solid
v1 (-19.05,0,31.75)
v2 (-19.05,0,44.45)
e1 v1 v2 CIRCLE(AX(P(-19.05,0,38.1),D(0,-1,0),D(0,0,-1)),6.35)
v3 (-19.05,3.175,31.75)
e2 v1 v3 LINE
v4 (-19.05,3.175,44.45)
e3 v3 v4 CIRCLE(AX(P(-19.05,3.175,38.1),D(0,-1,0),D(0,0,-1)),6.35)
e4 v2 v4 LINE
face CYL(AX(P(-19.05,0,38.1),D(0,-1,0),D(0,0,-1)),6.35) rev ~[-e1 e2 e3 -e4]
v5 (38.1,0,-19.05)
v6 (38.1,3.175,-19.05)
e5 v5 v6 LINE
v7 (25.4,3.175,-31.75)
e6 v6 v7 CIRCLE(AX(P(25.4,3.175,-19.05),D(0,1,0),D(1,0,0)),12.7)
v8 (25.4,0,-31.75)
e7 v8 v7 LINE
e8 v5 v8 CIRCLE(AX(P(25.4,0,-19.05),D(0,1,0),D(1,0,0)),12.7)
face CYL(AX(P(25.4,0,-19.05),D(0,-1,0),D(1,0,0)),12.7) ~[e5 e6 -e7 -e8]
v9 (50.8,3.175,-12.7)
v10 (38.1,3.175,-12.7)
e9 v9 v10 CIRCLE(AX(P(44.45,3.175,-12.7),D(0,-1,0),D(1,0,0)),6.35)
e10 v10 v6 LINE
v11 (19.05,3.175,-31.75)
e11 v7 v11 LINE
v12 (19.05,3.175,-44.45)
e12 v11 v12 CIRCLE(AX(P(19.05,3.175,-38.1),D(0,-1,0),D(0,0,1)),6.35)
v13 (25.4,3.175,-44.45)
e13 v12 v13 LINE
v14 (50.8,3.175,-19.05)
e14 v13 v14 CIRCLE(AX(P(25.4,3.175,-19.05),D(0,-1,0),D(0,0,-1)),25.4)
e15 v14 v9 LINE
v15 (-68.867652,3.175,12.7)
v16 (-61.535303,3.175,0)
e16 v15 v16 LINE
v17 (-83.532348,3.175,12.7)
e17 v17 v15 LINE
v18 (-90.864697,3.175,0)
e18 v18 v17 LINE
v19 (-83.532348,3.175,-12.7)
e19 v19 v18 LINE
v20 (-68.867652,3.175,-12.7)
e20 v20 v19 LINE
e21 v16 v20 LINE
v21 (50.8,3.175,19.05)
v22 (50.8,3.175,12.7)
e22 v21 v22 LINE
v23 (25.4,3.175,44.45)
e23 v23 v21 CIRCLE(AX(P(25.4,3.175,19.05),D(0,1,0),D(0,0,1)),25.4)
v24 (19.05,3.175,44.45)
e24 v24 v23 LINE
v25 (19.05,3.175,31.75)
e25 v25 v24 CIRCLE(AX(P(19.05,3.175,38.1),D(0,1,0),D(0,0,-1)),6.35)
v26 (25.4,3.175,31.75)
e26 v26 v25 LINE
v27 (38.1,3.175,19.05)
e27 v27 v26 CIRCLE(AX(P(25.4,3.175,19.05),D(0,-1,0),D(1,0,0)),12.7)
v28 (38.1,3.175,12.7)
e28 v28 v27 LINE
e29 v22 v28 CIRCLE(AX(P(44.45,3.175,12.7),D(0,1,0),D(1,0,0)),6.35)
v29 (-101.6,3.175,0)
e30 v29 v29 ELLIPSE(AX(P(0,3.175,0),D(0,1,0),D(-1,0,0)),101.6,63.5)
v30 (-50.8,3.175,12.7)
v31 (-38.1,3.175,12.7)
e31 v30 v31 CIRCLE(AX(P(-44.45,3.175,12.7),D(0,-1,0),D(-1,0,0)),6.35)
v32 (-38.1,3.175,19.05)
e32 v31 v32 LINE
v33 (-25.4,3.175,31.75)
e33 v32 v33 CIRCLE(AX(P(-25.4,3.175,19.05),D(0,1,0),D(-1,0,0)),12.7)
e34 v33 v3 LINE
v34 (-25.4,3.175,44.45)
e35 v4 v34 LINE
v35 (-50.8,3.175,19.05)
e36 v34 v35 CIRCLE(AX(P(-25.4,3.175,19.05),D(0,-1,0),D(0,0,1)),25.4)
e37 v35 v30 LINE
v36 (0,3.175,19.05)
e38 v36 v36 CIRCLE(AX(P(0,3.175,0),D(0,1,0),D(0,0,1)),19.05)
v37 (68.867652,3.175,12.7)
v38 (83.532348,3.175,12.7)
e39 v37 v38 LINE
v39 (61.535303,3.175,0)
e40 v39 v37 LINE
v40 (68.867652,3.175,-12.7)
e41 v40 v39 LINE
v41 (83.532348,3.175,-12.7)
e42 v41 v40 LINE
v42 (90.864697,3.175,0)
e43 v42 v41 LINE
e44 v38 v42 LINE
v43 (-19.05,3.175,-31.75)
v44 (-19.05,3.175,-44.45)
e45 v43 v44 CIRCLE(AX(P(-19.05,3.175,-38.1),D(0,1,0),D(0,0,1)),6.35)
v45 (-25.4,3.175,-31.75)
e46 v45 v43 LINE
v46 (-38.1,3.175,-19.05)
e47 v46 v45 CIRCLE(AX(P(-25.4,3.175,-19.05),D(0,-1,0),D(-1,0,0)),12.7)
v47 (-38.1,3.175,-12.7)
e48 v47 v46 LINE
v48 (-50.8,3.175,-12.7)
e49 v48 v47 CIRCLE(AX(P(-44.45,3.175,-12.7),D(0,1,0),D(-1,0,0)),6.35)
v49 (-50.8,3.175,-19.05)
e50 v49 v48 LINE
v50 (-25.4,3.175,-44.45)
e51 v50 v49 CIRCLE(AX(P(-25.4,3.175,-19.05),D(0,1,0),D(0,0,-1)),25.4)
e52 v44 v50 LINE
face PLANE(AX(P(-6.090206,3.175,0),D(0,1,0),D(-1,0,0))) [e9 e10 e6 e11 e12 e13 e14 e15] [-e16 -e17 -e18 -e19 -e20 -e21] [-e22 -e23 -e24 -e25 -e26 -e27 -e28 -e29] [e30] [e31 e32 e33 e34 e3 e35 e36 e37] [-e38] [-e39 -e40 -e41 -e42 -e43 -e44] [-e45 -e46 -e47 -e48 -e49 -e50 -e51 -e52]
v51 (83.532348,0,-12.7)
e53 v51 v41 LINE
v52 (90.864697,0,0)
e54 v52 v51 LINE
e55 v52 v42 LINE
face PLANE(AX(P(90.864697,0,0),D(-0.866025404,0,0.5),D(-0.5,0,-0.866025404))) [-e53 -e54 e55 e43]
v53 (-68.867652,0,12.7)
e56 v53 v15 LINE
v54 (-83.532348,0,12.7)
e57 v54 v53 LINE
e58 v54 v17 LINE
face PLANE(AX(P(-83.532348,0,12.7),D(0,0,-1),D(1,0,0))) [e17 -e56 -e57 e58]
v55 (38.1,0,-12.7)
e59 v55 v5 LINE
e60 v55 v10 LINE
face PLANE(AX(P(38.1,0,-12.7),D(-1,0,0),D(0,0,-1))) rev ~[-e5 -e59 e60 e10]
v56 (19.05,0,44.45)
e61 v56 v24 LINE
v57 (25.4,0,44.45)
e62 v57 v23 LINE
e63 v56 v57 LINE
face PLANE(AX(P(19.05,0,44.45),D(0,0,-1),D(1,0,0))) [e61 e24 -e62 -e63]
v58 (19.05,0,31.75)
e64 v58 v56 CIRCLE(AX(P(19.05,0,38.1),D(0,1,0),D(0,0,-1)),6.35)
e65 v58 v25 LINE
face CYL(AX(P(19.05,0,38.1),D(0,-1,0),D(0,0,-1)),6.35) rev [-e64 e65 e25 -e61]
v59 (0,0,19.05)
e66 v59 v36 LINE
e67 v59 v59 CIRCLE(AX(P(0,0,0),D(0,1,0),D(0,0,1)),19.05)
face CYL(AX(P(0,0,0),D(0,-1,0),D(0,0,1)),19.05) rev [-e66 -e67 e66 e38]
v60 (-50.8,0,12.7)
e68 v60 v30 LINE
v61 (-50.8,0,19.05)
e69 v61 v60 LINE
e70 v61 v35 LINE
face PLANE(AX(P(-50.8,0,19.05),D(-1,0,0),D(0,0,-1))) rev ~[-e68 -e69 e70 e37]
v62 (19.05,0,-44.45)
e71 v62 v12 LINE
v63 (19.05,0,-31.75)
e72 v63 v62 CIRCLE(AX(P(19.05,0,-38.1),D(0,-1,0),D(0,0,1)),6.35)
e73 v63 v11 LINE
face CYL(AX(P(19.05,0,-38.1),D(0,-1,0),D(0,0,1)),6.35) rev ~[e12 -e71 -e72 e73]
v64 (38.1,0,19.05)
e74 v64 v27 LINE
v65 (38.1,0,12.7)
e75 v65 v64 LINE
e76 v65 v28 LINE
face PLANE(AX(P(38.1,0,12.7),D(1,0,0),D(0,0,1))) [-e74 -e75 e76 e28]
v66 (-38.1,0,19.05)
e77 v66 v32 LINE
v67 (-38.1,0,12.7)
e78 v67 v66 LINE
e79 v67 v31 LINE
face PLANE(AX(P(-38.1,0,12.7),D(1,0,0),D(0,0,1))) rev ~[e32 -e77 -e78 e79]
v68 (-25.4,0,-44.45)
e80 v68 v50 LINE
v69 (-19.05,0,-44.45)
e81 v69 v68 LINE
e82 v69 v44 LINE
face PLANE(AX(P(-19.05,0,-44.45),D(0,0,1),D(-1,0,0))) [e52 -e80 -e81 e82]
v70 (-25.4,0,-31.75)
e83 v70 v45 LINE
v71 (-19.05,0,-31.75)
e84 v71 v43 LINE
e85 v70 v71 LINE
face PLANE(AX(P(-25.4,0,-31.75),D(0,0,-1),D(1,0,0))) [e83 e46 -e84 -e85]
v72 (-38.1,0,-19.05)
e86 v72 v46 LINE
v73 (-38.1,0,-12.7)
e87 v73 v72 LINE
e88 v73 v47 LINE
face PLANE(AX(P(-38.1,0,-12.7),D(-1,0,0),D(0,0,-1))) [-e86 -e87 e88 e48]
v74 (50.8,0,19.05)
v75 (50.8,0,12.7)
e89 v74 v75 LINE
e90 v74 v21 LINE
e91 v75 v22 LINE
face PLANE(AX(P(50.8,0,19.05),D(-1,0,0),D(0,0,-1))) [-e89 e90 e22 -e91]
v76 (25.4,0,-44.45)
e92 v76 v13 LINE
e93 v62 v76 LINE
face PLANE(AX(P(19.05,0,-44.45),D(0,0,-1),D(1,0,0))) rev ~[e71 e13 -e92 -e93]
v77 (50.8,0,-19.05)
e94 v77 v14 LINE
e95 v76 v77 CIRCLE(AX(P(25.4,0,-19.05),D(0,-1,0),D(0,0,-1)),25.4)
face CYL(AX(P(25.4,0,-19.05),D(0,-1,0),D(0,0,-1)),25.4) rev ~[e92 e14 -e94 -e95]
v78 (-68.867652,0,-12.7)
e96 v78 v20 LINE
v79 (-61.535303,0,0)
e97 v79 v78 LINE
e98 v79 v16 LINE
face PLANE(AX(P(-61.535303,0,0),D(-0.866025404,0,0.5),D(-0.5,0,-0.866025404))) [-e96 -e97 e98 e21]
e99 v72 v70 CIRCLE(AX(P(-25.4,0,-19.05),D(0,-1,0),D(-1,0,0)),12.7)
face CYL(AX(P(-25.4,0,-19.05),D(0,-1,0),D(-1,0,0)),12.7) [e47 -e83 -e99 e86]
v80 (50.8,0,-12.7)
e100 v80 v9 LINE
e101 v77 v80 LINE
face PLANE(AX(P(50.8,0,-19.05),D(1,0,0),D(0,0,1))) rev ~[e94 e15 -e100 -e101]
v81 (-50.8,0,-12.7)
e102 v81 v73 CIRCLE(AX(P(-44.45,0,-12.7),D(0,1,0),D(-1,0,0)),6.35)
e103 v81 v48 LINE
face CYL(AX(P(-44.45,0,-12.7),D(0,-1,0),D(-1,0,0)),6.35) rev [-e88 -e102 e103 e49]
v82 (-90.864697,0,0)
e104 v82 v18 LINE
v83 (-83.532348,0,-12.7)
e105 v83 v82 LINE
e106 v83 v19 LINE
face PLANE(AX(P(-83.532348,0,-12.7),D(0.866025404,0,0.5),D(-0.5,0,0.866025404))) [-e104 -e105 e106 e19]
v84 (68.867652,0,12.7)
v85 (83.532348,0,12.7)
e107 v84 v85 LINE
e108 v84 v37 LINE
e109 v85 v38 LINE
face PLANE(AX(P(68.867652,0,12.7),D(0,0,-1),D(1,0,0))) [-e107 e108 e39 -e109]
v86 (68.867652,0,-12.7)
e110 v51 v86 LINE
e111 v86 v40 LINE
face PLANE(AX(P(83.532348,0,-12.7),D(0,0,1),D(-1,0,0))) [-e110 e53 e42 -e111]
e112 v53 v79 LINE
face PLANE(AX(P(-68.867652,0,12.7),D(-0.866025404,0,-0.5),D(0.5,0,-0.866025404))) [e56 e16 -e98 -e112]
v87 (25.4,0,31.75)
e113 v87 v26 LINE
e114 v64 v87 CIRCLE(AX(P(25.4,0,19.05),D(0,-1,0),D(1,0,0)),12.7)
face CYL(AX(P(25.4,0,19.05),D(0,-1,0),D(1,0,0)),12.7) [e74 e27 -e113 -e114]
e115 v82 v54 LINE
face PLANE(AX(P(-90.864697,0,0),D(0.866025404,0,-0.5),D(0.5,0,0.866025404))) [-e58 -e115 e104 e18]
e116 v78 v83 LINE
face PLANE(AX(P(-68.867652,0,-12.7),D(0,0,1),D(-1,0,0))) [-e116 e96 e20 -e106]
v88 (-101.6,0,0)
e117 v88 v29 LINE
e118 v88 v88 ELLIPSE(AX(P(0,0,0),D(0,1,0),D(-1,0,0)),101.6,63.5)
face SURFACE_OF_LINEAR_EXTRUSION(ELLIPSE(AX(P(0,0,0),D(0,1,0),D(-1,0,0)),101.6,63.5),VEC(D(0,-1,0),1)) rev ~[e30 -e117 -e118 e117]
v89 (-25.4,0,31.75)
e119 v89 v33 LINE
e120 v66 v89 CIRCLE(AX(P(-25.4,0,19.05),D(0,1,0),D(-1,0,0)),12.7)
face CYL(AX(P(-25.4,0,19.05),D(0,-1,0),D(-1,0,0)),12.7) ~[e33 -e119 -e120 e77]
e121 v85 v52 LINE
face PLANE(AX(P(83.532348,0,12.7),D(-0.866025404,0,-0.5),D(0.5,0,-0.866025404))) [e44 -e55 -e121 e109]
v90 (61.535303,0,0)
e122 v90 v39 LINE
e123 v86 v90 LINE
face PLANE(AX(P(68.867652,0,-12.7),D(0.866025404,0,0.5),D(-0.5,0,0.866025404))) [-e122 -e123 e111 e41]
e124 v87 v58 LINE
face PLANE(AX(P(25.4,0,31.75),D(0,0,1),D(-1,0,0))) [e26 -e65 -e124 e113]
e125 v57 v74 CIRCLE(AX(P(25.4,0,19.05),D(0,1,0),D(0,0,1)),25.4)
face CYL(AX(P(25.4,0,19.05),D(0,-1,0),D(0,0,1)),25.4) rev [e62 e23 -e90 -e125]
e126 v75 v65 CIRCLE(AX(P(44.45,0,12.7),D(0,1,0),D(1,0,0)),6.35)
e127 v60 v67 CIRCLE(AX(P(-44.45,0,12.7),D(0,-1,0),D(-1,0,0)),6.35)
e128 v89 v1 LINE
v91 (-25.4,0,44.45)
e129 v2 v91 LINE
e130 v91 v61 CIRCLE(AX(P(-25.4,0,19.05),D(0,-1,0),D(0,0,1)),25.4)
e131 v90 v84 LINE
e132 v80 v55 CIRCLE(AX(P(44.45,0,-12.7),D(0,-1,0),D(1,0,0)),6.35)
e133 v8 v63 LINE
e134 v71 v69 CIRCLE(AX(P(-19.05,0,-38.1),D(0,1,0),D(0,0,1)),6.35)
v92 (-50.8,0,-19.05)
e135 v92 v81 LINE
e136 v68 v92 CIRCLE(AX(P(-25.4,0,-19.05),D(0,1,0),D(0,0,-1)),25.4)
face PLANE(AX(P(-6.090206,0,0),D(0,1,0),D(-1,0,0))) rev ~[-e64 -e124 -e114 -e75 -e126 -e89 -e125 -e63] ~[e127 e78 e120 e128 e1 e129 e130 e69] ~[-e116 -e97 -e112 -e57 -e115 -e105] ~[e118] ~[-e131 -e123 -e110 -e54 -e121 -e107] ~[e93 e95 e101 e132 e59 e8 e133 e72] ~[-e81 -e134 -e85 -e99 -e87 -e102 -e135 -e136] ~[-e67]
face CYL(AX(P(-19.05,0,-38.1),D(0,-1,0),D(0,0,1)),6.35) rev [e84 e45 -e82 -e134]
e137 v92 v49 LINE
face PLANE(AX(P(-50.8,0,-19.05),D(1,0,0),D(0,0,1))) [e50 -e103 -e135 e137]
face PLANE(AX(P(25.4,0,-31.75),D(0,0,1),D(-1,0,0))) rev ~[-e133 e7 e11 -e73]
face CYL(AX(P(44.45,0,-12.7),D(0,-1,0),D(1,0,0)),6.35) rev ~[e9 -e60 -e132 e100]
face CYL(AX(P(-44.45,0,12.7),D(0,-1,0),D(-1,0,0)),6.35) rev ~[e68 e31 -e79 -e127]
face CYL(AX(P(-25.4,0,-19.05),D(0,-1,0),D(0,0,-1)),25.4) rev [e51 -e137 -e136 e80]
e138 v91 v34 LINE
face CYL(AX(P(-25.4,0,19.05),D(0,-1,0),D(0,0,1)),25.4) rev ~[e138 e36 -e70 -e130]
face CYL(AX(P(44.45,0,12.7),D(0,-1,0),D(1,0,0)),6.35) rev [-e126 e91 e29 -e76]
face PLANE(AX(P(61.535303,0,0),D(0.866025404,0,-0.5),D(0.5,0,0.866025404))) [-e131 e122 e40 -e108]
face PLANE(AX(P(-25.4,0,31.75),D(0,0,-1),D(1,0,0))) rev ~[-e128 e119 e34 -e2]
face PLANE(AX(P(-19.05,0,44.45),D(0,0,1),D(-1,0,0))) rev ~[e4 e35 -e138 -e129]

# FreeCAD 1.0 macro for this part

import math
import FreeCAD as App
import Part
import Sketcher
from FreeCAD import Vector
Q = App.Units.Quantity


def add_polygon(sketch, points):
    """Adds a closed chain of lines whose ends are joined by coincident constraints."""
    first, n = sketch.GeometryCount, len(points)
    for a, b in zip(points, points[1:] + points[:1]):
        sketch.addGeometry(Part.LineSegment(App.Vector(*a, 0), App.Vector(*b, 0)), False)
    for i in range(n):
        sketch.addConstraint(Sketcher.Constraint("Coincident", first + i, 2, first + (i + 1) % n, 1))

doc = App.newDocument("Part")
body = doc.addObject("PartDesign::Body", "Body")

sketch1 = body.newObject("Sketcher::SketchObject", "Sketch")
sketch1.AttachmentSupport = (doc.getObject("XZ_Plane"), [""])
sketch1.MapMode = "FlatFace"
sketch1.addGeometry(Part.Ellipse(Vector(-101.6, 0, 0), Vector(0, -63.5, 0), Vector(0, 0, 0)), False)
sketch1.addGeometry(Part.ArcOfCircle(Part.Circle(Vector(25.4, -19.05, 0), Vector(0, 0, 1), 12.7), math.radians(-90), math.radians(0)), False)
sketch1.addGeometry(Part.LineSegment(Vector(25.4, -31.75, 0), Vector(19.05, -31.75, 0)), False)
sketch1.addGeometry(Part.ArcOfCircle(Part.Circle(Vector(19.05, -38.1, 0), Vector(0, 0, 1), 6.35), math.radians(90), math.radians(270)), False)
sketch1.addGeometry(Part.LineSegment(Vector(19.05, -44.45, 0), Vector(25.4, -44.45, 0)), False)
sketch1.addGeometry(Part.ArcOfCircle(Part.Circle(Vector(25.4, -19.05, 0), Vector(0, 0, 1), 25.4), math.radians(-90), math.radians(0)), False)
sketch1.addGeometry(Part.LineSegment(Vector(50.8, -19.05, 0), Vector(50.8, -12.7, 0)), False)
sketch1.addGeometry(Part.ArcOfCircle(Part.Circle(Vector(44.45, -12.7, 0), Vector(0, 0, 1), 6.35), math.radians(0), math.radians(180)), False)
sketch1.addGeometry(Part.LineSegment(Vector(38.1, -12.7, 0), Vector(38.1, -19.05, 0)), False)
add_polygon(sketch1, [(83.532348, -12.7), (90.864697, 0), (83.532348, 12.7), (68.867652, 12.7), (61.535303, 0), (68.867652, -12.7)])
sketch1.addGeometry(Part.LineSegment(Vector(-19.05, -31.75, 0), Vector(-25.4, -31.75, 0)), False)
sketch1.addGeometry(Part.ArcOfCircle(Part.Circle(Vector(-25.4, -19.05, 0), Vector(0, 0, 1), 12.7), math.radians(180), math.radians(270)), False)
sketch1.addGeometry(Part.LineSegment(Vector(-38.1, -19.05, 0), Vector(-38.1, -12.7, 0)), False)
sketch1.addGeometry(Part.ArcOfCircle(Part.Circle(Vector(-44.45, -12.7, 0), Vector(0, 0, 1), 6.35), math.radians(0), math.radians(180)), False)
sketch1.addGeometry(Part.LineSegment(Vector(-50.8, -12.7, 0), Vector(-50.8, -19.05, 0)), False)
sketch1.addGeometry(Part.ArcOfCircle(Part.Circle(Vector(-25.4, -19.05, 0), Vector(0, 0, 1), 25.4), math.radians(180), math.radians(270)), False)
sketch1.addGeometry(Part.LineSegment(Vector(-25.4, -44.45, 0), Vector(-19.05, -44.45, 0)), False)
sketch1.addGeometry(Part.ArcOfCircle(Part.Circle(Vector(-19.05, -38.1, 0), Vector(0, 0, 1), 6.35), math.radians(-90), math.radians(90)), False)
sketch1.addGeometry(Part.LineSegment(Vector(50.8, 12.7, 0), Vector(50.8, 19.05, 0)), False)
sketch1.addGeometry(Part.ArcOfCircle(Part.Circle(Vector(25.4, 19.05, 0), Vector(0, 0, 1), 25.4), math.radians(0), math.radians(90)), False)
sketch1.addGeometry(Part.LineSegment(Vector(25.4, 44.45, 0), Vector(19.05, 44.45, 0)), False)
sketch1.addGeometry(Part.ArcOfCircle(Part.Circle(Vector(19.05, 38.1, 0), Vector(0, 0, 1), 6.35), math.radians(90), math.radians(270)), False)
sketch1.addGeometry(Part.LineSegment(Vector(19.05, 31.75, 0), Vector(25.4, 31.75, 0)), False)
sketch1.addGeometry(Part.ArcOfCircle(Part.Circle(Vector(25.4, 19.05, 0), Vector(0, 0, 1), 12.7), math.radians(0), math.radians(90)), False)
sketch1.addGeometry(Part.LineSegment(Vector(38.1, 19.05, 0), Vector(38.1, 12.7, 0)), False)
sketch1.addGeometry(Part.ArcOfCircle(Part.Circle(Vector(44.45, 12.7, 0), Vector(0, 0, 1), 6.35), math.radians(180), math.radians(360)), False)
sketch1.addGeometry(Part.Circle(Vector(0, 0, 0), Vector(0, 0, 1), 19.05), False)
add_polygon(sketch1, [(-68.867652, -12.7), (-61.535303, 0), (-68.867652, 12.7), (-83.532348, 12.7), (-90.864697, 0), (-83.532348, -12.7)])
sketch1.addGeometry(Part.ArcOfCircle(Part.Circle(Vector(-25.4, 19.05, 0), Vector(0, 0, 1), 12.7), math.radians(90), math.radians(180)), False)
sketch1.addGeometry(Part.LineSegment(Vector(-25.4, 31.75, 0), Vector(-19.05, 31.75, 0)), False)
sketch1.addGeometry(Part.ArcOfCircle(Part.Circle(Vector(-19.05, 38.1, 0), Vector(0, 0, 1), 6.35), math.radians(-90), math.radians(90)), False)
sketch1.addGeometry(Part.LineSegment(Vector(-19.05, 44.45, 0), Vector(-25.4, 44.45, 0)), False)
sketch1.addGeometry(Part.ArcOfCircle(Part.Circle(Vector(-25.4, 19.05, 0), Vector(0, 0, 1), 25.4), math.radians(90), math.radians(180)), False)
sketch1.addGeometry(Part.LineSegment(Vector(-50.8, 19.05, 0), Vector(-50.8, 12.7, 0)), False)
sketch1.addGeometry(Part.ArcOfCircle(Part.Circle(Vector(-44.45, 12.7, 0), Vector(0, 0, 1), 6.35), math.radians(180), math.radians(360)), False)
sketch1.addGeometry(Part.LineSegment(Vector(-38.1, 12.7, 0), Vector(-38.1, 19.05, 0)), False)
sketch1.addConstraint([
    Sketcher.Constraint("Block", 0),
    Sketcher.Constraint("Tangent", 1, 1, 2, 1),
    Sketcher.Constraint("Tangent", 2, 2, 3, 1),
    Sketcher.Constraint("Tangent", 3, 2, 4, 1),
    Sketcher.Constraint("Tangent", 4, 2, 5, 1),
    Sketcher.Constraint("Tangent", 5, 2, 6, 1),
    Sketcher.Constraint("Tangent", 6, 2, 7, 1),
    Sketcher.Constraint("Tangent", 7, 2, 8, 1),
    Sketcher.Constraint("Tangent", 8, 2, 1, 2),
    Sketcher.Constraint("Tangent", 15, 2, 16, 2),
    Sketcher.Constraint("Tangent", 16, 1, 17, 1),
    Sketcher.Constraint("Tangent", 17, 2, 18, 1),
    Sketcher.Constraint("Tangent", 18, 2, 19, 1),
    Sketcher.Constraint("Tangent", 19, 2, 20, 1),
    Sketcher.Constraint("Tangent", 20, 2, 21, 1),
    Sketcher.Constraint("Tangent", 21, 2, 22, 1),
    Sketcher.Constraint("Tangent", 22, 2, 15, 1),
    Sketcher.Constraint("Tangent", 23, 2, 24, 1),
    Sketcher.Constraint("Tangent", 24, 2, 25, 1),
    Sketcher.Constraint("Tangent", 25, 2, 26, 1),
    Sketcher.Constraint("Tangent", 26, 2, 27, 1),
    Sketcher.Constraint("Tangent", 27, 2, 28, 2),
    Sketcher.Constraint("Tangent", 28, 1, 29, 1),
    Sketcher.Constraint("Tangent", 29, 2, 30, 1),
    Sketcher.Constraint("Tangent", 30, 2, 23, 1),
    Sketcher.Constraint("Tangent", 38, 1, 39, 1),
    Sketcher.Constraint("Tangent", 39, 2, 40, 1),
    Sketcher.Constraint("Tangent", 40, 2, 41, 1),
    Sketcher.Constraint("Tangent", 41, 2, 42, 1),
    Sketcher.Constraint("Tangent", 42, 2, 43, 1),
    Sketcher.Constraint("Tangent", 43, 2, 44, 1),
    Sketcher.Constraint("Tangent", 44, 2, 45, 1),
    Sketcher.Constraint("Tangent", 45, 2, 38, 2),
    Sketcher.Constraint("Horizontal", 2),
    Sketcher.Constraint("Horizontal", 4),
    Sketcher.Constraint("Vertical", 6),
    Sketcher.Constraint("Vertical", 8),
    Sketcher.Constraint("Horizontal", 11),
    Sketcher.Constraint("Horizontal", 14),
    Sketcher.Constraint("Horizontal", 15),
    Sketcher.Constraint("Vertical", 17),
    Sketcher.Constraint("Vertical", 19),
    Sketcher.Constraint("Horizontal", 21),
    Sketcher.Constraint("Vertical", 23),
    Sketcher.Constraint("Horizontal", 25),
    Sketcher.Constraint("Horizontal", 27),
    Sketcher.Constraint("Vertical", 29),
    Sketcher.Constraint("Horizontal", 34),
    Sketcher.Constraint("Horizontal", 37),
    Sketcher.Constraint("Horizontal", 39),
    Sketcher.Constraint("Horizontal", 41),
    Sketcher.Constraint("Vertical", 43),
    Sketcher.Constraint("Vertical", 45),
    Sketcher.Constraint("Coincident", 31, 3, -1, 1),
    Sketcher.Constraint("Coincident", 5, 3, 1, 3),
    Sketcher.Constraint("Coincident", 20, 3, 16, 3),
    Sketcher.Constraint("Coincident", 28, 3, 24, 3),
    Sketcher.Constraint("Coincident", 42, 3, 38, 3),
    Sketcher.Constraint("Equal", 1, 16),
    Sketcher.Constraint("Equal", 7, 18),
    Sketcher.Constraint("Equal", 20, 24),
    Sketcher.Constraint("Equal", 22, 26),
    Sketcher.Constraint("Equal", 28, 38),
    Sketcher.Constraint("Equal", 30, 40),
    Sketcher.Constraint("Symmetric", 16, 3, 24, 3, -1, 1),
    Sketcher.Constraint("Symmetric", 1, 3, 38, 3, -1, 1),
    Sketcher.Constraint("Symmetric", 12, 2, 32, 2, -1, 1),
    Sketcher.Constraint("Symmetric", 13, 2, 33, 2, -1, 1),
    Sketcher.Constraint("Symmetric", 9, 2, 35, 2, -1, 1),
    Sketcher.Constraint("Symmetric", 10, 2, 36, 2, -1, 1),
    Sketcher.Constraint("Symmetric", 1, 3, 16, 3, -2),
    Sketcher.Constraint("Symmetric", 11, 2, 33, 2, -2),
    Sketcher.Constraint("PointOnObject", 9, 2, -1),
    Sketcher.Constraint("PointOnObject", 12, 2, -1),
    Sketcher.Constraint("Parallel", 9, 12),
    Sketcher.Constraint("Parallel", 10, 13),
    Sketcher.Constraint("Parallel", 12, 32),
    Sketcher.Constraint("Parallel", 32, 35),
    Sketcher.Constraint("Horizontal", 7, 3, 18, 3),
    Sketcher.Constraint("Horizontal", 30, 3, 44, 3),
    Sketcher.Constraint("Horizontal", 44, 3, 10, 2),
    Sketcher.Constraint("Horizontal", 7, 2, 13, 2),
    Sketcher.Constraint("Vertical", 3, 3, 26, 3),
    Sketcher.Constraint("Vertical", 22, 3, 40, 3),
    Sketcher.Constraint("Equal", 4, 15),
    Sketcher.Constraint("Equal", 41, 6),
    Sketcher.Constraint("Radius", 5, Q("1 in")),
    Sketcher.Constraint("Diameter", 31, Q("1.5 in")),
    Sketcher.Constraint("Radius", 1, Q("0.5 in")),
    Sketcher.Constraint("DistanceX", -1, 1, 1, 3, Q("1 in")),
    Sketcher.Constraint("Angle", 9, Q("60 deg")),
    Sketcher.Constraint("DistanceX", 2, 2, 2, 1, Q("0.25 in")),
    Sketcher.Constraint("DistanceY", 3, 3, -1, 1, Q("1.5 in")),
    Sketcher.Constraint("DistanceX", 11, 2, 11, 1, 14.664697),
    Sketcher.Constraint("DistanceX", -1, 1, 10, 2, 83.532348),
])
pad1 = body.newObject("PartDesign::Pad", "Pad")
pad1.Profile = sketch1
pad1.Length = Q("0.125 in")
pad1.Reversed = True

doc.recompute()
